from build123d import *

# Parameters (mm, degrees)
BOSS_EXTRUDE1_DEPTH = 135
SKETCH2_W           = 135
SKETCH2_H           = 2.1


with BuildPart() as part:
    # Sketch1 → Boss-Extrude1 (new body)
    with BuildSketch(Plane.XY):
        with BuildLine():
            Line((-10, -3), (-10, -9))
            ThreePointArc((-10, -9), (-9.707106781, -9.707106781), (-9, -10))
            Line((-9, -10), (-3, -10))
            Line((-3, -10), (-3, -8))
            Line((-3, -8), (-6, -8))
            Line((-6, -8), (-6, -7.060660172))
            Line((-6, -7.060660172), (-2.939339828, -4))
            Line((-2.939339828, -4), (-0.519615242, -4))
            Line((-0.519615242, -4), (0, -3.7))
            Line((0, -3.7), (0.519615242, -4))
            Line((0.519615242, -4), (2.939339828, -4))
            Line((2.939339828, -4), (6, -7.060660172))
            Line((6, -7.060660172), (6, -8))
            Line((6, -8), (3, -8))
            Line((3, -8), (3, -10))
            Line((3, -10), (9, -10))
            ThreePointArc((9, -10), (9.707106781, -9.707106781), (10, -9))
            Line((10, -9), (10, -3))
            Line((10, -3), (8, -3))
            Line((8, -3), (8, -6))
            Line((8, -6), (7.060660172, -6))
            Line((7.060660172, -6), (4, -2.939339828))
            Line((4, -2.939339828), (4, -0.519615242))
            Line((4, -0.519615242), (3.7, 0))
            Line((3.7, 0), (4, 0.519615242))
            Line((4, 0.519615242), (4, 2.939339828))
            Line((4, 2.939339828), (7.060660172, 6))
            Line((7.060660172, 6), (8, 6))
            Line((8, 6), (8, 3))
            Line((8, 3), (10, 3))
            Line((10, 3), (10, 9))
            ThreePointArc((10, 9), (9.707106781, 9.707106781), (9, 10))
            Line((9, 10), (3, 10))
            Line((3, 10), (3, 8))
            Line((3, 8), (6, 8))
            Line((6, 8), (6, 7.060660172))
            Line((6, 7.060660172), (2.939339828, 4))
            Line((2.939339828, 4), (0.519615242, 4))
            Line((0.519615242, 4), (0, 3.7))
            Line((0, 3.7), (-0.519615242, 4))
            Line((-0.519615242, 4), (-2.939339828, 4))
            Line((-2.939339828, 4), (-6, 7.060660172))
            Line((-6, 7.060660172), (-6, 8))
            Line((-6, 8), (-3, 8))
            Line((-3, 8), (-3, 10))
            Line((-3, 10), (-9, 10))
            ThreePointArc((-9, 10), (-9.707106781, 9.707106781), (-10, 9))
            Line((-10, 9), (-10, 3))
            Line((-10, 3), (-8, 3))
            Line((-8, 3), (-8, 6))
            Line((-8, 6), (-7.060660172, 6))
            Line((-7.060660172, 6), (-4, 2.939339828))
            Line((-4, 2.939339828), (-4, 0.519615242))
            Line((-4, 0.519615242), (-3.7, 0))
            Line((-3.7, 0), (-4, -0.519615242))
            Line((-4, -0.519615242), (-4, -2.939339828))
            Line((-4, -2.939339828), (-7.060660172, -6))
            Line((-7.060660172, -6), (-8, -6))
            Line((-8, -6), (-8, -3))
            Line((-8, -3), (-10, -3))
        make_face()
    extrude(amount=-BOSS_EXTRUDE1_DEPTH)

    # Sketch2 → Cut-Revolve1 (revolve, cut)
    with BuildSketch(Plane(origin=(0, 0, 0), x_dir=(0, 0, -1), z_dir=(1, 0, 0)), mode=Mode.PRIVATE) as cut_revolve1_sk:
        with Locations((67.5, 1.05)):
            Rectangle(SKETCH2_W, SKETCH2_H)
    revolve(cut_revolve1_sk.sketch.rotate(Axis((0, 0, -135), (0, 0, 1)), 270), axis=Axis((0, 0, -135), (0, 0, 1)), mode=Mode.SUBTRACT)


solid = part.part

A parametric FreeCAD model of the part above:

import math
import FreeCAD as App
import Part
import Sketcher
Q = App.Units.Quantity

doc = App.newDocument("Part")
body = doc.addObject("PartDesign::Body", "Body")

# Sketch on XY plane
sketch1 = doc.addObject("Sketcher::SketchObject", "Sketch")
body.addObject(sketch1)
sketch1.AttachmentSupport = (doc.XY_Plane, [""])
sketch1.MapMode = "FlatFace"
sketch1.addGeometry([
    Part.LineSegment(App.Vector(-10, -3, 0), App.Vector(-10, -9, 0)),  # 0
    Part.ArcOfCircle(Part.Circle(App.Vector(-9, -9, 0), App.Vector(0, 0, 1), 1), math.radians(-180), math.radians(-90)),  # 1
    Part.LineSegment(App.Vector(-9, -10, 0), App.Vector(-3, -10, 0)),  # 2
    Part.LineSegment(App.Vector(-3, -10, 0), App.Vector(-3, -8, 0)),  # 3
    Part.LineSegment(App.Vector(-3, -8, 0), App.Vector(-6, -8, 0)),  # 4
    Part.LineSegment(App.Vector(-6, -8, 0), App.Vector(-6, -7.06066, 0)),  # 5
    Part.LineSegment(App.Vector(-6, -7.06066, 0), App.Vector(-2.93934, -4, 0)),  # 6
    Part.LineSegment(App.Vector(-2.93934, -4, 0), App.Vector(-0.519615, -4, 0)),  # 7
    Part.LineSegment(App.Vector(-0.519615, -4, 0), App.Vector(0, -3.7, 0)),  # 8
    Part.LineSegment(App.Vector(0, -3.7, 0), App.Vector(0.519615, -4, 0)),  # 9
    Part.LineSegment(App.Vector(0.519615, -4, 0), App.Vector(2.93934, -4, 0)),  # 10
    Part.LineSegment(App.Vector(2.93934, -4, 0), App.Vector(6, -7.06066, 0)),  # 11
    Part.LineSegment(App.Vector(6, -7.06066, 0), App.Vector(6, -8, 0)),  # 12
    Part.LineSegment(App.Vector(6, -8, 0), App.Vector(3, -8, 0)),  # 13
    Part.LineSegment(App.Vector(3, -8, 0), App.Vector(3, -10, 0)),  # 14
    Part.LineSegment(App.Vector(3, -10, 0), App.Vector(9, -10, 0)),  # 15
    Part.ArcOfCircle(Part.Circle(App.Vector(9, -9, 0), App.Vector(0, 0, 1), 1), math.radians(-90), math.radians(0)),  # 16
    Part.LineSegment(App.Vector(10, -9, 0), App.Vector(10, -3, 0)),  # 17
    Part.LineSegment(App.Vector(10, -3, 0), App.Vector(8, -3, 0)),  # 18
    Part.LineSegment(App.Vector(8, -3, 0), App.Vector(8, -6, 0)),  # 19
    Part.LineSegment(App.Vector(8, -6, 0), App.Vector(7.06066, -6, 0)),  # 20
    Part.LineSegment(App.Vector(7.06066, -6, 0), App.Vector(4, -2.93934, 0)),  # 21
    Part.LineSegment(App.Vector(4, -2.93934, 0), App.Vector(4, -0.519615, 0)),  # 22
    Part.LineSegment(App.Vector(4, -0.519615, 0), App.Vector(3.7, 0, 0)),  # 23
    Part.LineSegment(App.Vector(3.7, 0, 0), App.Vector(4, 0.519615, 0)),  # 24
    Part.LineSegment(App.Vector(4, 0.519615, 0), App.Vector(4, 2.93934, 0)),  # 25
    Part.LineSegment(App.Vector(4, 2.93934, 0), App.Vector(7.06066, 6, 0)),  # 26
    Part.LineSegment(App.Vector(7.06066, 6, 0), App.Vector(8, 6, 0)),  # 27
    Part.LineSegment(App.Vector(8, 6, 0), App.Vector(8, 3, 0)),  # 28
    Part.LineSegment(App.Vector(8, 3, 0), App.Vector(10, 3, 0)),  # 29
    Part.LineSegment(App.Vector(10, 3, 0), App.Vector(10, 9, 0)),  # 30
    Part.ArcOfCircle(Part.Circle(App.Vector(9, 9, 0), App.Vector(0, 0, 1), 1), math.radians(0), math.radians(90)),  # 31
    Part.LineSegment(App.Vector(9, 10, 0), App.Vector(3, 10, 0)),  # 32
    Part.LineSegment(App.Vector(3, 10, 0), App.Vector(3, 8, 0)),  # 33
    Part.LineSegment(App.Vector(3, 8, 0), App.Vector(6, 8, 0)),  # 34
    Part.LineSegment(App.Vector(6, 8, 0), App.Vector(6, 7.06066, 0)),  # 35
    Part.LineSegment(App.Vector(6, 7.06066, 0), App.Vector(2.93934, 4, 0)),  # 36
    Part.LineSegment(App.Vector(2.93934, 4, 0), App.Vector(0.519615, 4, 0)),  # 37
    Part.LineSegment(App.Vector(0.519615, 4, 0), App.Vector(0, 3.7, 0)),  # 38
    Part.LineSegment(App.Vector(0, 3.7, 0), App.Vector(-0.519615, 4, 0)),  # 39
    Part.LineSegment(App.Vector(-0.519615, 4, 0), App.Vector(-2.93934, 4, 0)),  # 40
    Part.LineSegment(App.Vector(-2.93934, 4, 0), App.Vector(-6, 7.06066, 0)),  # 41
    Part.LineSegment(App.Vector(-6, 7.06066, 0), App.Vector(-6, 8, 0)),  # 42
    Part.LineSegment(App.Vector(-6, 8, 0), App.Vector(-3, 8, 0)),  # 43
    Part.LineSegment(App.Vector(-3, 8, 0), App.Vector(-3, 10, 0)),  # 44
    Part.LineSegment(App.Vector(-3, 10, 0), App.Vector(-9, 10, 0)),  # 45
    Part.ArcOfCircle(Part.Circle(App.Vector(-9, 9, 0), App.Vector(0, 0, 1), 1), math.radians(90), math.radians(180)),  # 46
    Part.LineSegment(App.Vector(-10, 9, 0), App.Vector(-10, 3, 0)),  # 47
    Part.LineSegment(App.Vector(-10, 3, 0), App.Vector(-8, 3, 0)),  # 48
    Part.LineSegment(App.Vector(-8, 3, 0), App.Vector(-8, 6, 0)),  # 49
    Part.LineSegment(App.Vector(-8, 6, 0), App.Vector(-7.06066, 6, 0)),  # 50
    Part.LineSegment(App.Vector(-7.06066, 6, 0), App.Vector(-4, 2.93934, 0)),  # 51
    Part.LineSegment(App.Vector(-4, 2.93934, 0), App.Vector(-4, 0.519615, 0)),  # 52
    Part.LineSegment(App.Vector(-4, 0.519615, 0), App.Vector(-3.7, 0, 0)),  # 53
    Part.LineSegment(App.Vector(-3.7, 0, 0), App.Vector(-4, -0.519615, 0)),  # 54
    Part.LineSegment(App.Vector(-4, -0.519615, 0), App.Vector(-4, -2.93934, 0)),  # 55
    Part.LineSegment(App.Vector(-4, -2.93934, 0), App.Vector(-7.06066, -6, 0)),  # 56
    Part.LineSegment(App.Vector(-7.06066, -6, 0), App.Vector(-8, -6, 0)),  # 57
    Part.LineSegment(App.Vector(-8, -6, 0), App.Vector(-8, -3, 0)),  # 58
    Part.LineSegment(App.Vector(-8, -3, 0), App.Vector(-10, -3, 0)),  # 59
], False)
sketch1.addConstraint([
    Sketcher.Constraint("Tangent", 0, 2, 1, 1),
    Sketcher.Constraint("Tangent", 1, 2, 2, 1),
    Sketcher.Constraint("Coincident", 2, 2, 3, 1),
    Sketcher.Constraint("Coincident", 3, 2, 4, 1),
    Sketcher.Constraint("Coincident", 4, 2, 5, 1),
    Sketcher.Constraint("Coincident", 5, 2, 6, 1),
    Sketcher.Constraint("Coincident", 6, 2, 7, 1),
    Sketcher.Constraint("Coincident", 7, 2, 8, 1),
    Sketcher.Constraint("Coincident", 8, 2, 9, 1),
    Sketcher.Constraint("Coincident", 9, 2, 10, 1),
    Sketcher.Constraint("Coincident", 10, 2, 11, 1),
    Sketcher.Constraint("Coincident", 11, 2, 12, 1),
    Sketcher.Constraint("Coincident", 12, 2, 13, 1),
    Sketcher.Constraint("Coincident", 13, 2, 14, 1),
    Sketcher.Constraint("Coincident", 14, 2, 15, 1),
    Sketcher.Constraint("Tangent", 15, 2, 16, 1),
    Sketcher.Constraint("Tangent", 16, 2, 17, 1),
    Sketcher.Constraint("Coincident", 17, 2, 18, 1),
    Sketcher.Constraint("Coincident", 18, 2, 19, 1),
    Sketcher.Constraint("Coincident", 19, 2, 20, 1),
    Sketcher.Constraint("Coincident", 20, 2, 21, 1),
    Sketcher.Constraint("Coincident", 21, 2, 22, 1),
    Sketcher.Constraint("Coincident", 22, 2, 23, 1),
    Sketcher.Constraint("Coincident", 23, 2, 24, 1),
    Sketcher.Constraint("Coincident", 24, 2, 25, 1),
    Sketcher.Constraint("Coincident", 25, 2, 26, 1),
    Sketcher.Constraint("Coincident", 26, 2, 27, 1),
    Sketcher.Constraint("Coincident", 27, 2, 28, 1),
    Sketcher.Constraint("Coincident", 28, 2, 29, 1),
    Sketcher.Constraint("Coincident", 29, 2, 30, 1),
    Sketcher.Constraint("Tangent", 30, 2, 31, 1),
    Sketcher.Constraint("Tangent", 31, 2, 32, 1),
    Sketcher.Constraint("Coincident", 32, 2, 33, 1),
    Sketcher.Constraint("Coincident", 33, 2, 34, 1),
    Sketcher.Constraint("Coincident", 34, 2, 35, 1),
    Sketcher.Constraint("Coincident", 35, 2, 36, 1),
    Sketcher.Constraint("Coincident", 36, 2, 37, 1),
    Sketcher.Constraint("Coincident", 37, 2, 38, 1),
    Sketcher.Constraint("Coincident", 38, 2, 39, 1),
    Sketcher.Constraint("Coincident", 39, 2, 40, 1),
    Sketcher.Constraint("Coincident", 40, 2, 41, 1),
    Sketcher.Constraint("Coincident", 41, 2, 42, 1),
    Sketcher.Constraint("Coincident", 42, 2, 43, 1),
    Sketcher.Constraint("Coincident", 43, 2, 44, 1),
    Sketcher.Constraint("Coincident", 44, 2, 45, 1),
    Sketcher.Constraint("Tangent", 45, 2, 46, 1),
    Sketcher.Constraint("Tangent", 46, 2, 47, 1),
    Sketcher.Constraint("Coincident", 47, 2, 48, 1),
    Sketcher.Constraint("Coincident", 48, 2, 49, 1),
    Sketcher.Constraint("Coincident", 49, 2, 50, 1),
    Sketcher.Constraint("Coincident", 50, 2, 51, 1),
    Sketcher.Constraint("Coincident", 51, 2, 52, 1),
    Sketcher.Constraint("Coincident", 52, 2, 53, 1),
    Sketcher.Constraint("Coincident", 53, 2, 54, 1),
    Sketcher.Constraint("Coincident", 54, 2, 55, 1),
    Sketcher.Constraint("Coincident", 55, 2, 56, 1),
    Sketcher.Constraint("Coincident", 56, 2, 57, 1),
    Sketcher.Constraint("Coincident", 57, 2, 58, 1),
    Sketcher.Constraint("Coincident", 58, 2, 59, 1),
    Sketcher.Constraint("Coincident", 59, 2, 0, 1),
    Sketcher.Constraint("Vertical", 0),
    Sketcher.Constraint("Horizontal", 2),
    Sketcher.Constraint("Vertical", 3),
    Sketcher.Constraint("Horizontal", 4),
    Sketcher.Constraint("Vertical", 5),
    Sketcher.Constraint("Horizontal", 7),
    Sketcher.Constraint("Horizontal", 10),
    Sketcher.Constraint("Vertical", 12),
    Sketcher.Constraint("Horizontal", 13),
    Sketcher.Constraint("Vertical", 14),
    Sketcher.Constraint("Horizontal", 15),
    Sketcher.Constraint("Vertical", 17),
    Sketcher.Constraint("Horizontal", 18),
    Sketcher.Constraint("Vertical", 19),
    Sketcher.Constraint("Horizontal", 20),
    Sketcher.Constraint("Vertical", 22),
    Sketcher.Constraint("Vertical", 25),
    Sketcher.Constraint("Horizontal", 27),
    Sketcher.Constraint("Vertical", 28),
    Sketcher.Constraint("Horizontal", 29),
    Sketcher.Constraint("Vertical", 30),
    Sketcher.Constraint("Horizontal", 32),
    Sketcher.Constraint("Vertical", 33),
    Sketcher.Constraint("Horizontal", 34),
    Sketcher.Constraint("Vertical", 35),
    Sketcher.Constraint("Horizontal", 37),
    Sketcher.Constraint("Horizontal", 40),
    Sketcher.Constraint("Vertical", 42),
    Sketcher.Constraint("Horizontal", 43),
    Sketcher.Constraint("Vertical", 44),
    Sketcher.Constraint("Horizontal", 45),
    Sketcher.Constraint("Vertical", 47),
    Sketcher.Constraint("Horizontal", 48),
    Sketcher.Constraint("Vertical", 49),
    Sketcher.Constraint("Horizontal", 50),
    Sketcher.Constraint("Vertical", 52),
    Sketcher.Constraint("Vertical", 55),
    Sketcher.Constraint("Horizontal", 57),
    Sketcher.Constraint("Vertical", 58),
    Sketcher.Constraint("Horizontal", 59),
    Sketcher.Constraint("Equal", 1, 16),
    Sketcher.Constraint("Equal", 16, 31),
    Sketcher.Constraint("Equal", 31, 46),
    Sketcher.Constraint("Symmetric", 1, 3, 31, 3, -1, 1),
    Sketcher.Constraint("Symmetric", 16, 3, 46, 3, -1, 1),
    Sketcher.Constraint("Symmetric", 3, 2, 33, 2, -1, 1),
    Sketcher.Constraint("Symmetric", 5, 2, 35, 2, -1, 1),
    Sketcher.Constraint("Symmetric", 6, 2, 36, 2, -1, 1),
    Sketcher.Constraint("Symmetric", 8, 2, 38, 2, -1, 1),
    Sketcher.Constraint("Symmetric", 9, 2, 39, 2, -1, 1),
    Sketcher.Constraint("Symmetric", 11, 2, 41, 2, -1, 1),
    Sketcher.Constraint("Symmetric", 13, 2, 43, 2, -1, 1),
    Sketcher.Constraint("Symmetric", 18, 2, 48, 2, -1, 1),
    Sketcher.Constraint("Symmetric", 20, 2, 50, 2, -1, 1),
    Sketcher.Constraint("Symmetric", 21, 2, 51, 2, -1, 1),
    Sketcher.Constraint("Symmetric", 23, 2, 53, 2, -1, 1),
    Sketcher.Constraint("Symmetric", 24, 2, 54, 2, -1, 1),
    Sketcher.Constraint("Symmetric", 26, 2, 56, 2, -1, 1),
    Sketcher.Constraint("Symmetric", 28, 2, 58, 2, -1, 1),
    Sketcher.Constraint("Symmetric", 1, 3, 16, 3, -2),
    Sketcher.Constraint("Symmetric", 7, 2, 9, 2, -2),
    Sketcher.Constraint("Symmetric", 5, 2, 11, 2, -2),
    Sketcher.Constraint("Symmetric", 3, 2, 13, 2, -2),
    Sketcher.Constraint("Symmetric", 28, 2, 48, 2, -2),
    Sketcher.Constraint("Symmetric", 26, 2, 50, 2, -2),
    Sketcher.Constraint("Symmetric", 25, 2, 51, 2, -2),
    Sketcher.Constraint("PointOnObject", 8, 2, -2),
    Sketcher.Constraint("PointOnObject", 23, 2, -1),
    Sketcher.Constraint("Perpendicular", 6, 11),
    Sketcher.Constraint("Parallel", 11, 21),
    Sketcher.Constraint("Perpendicular", 8, 23),
    Sketcher.Constraint("Perpendicular", 9, 24),
    Sketcher.Constraint("Perpendicular", 21, 26),
    Sketcher.Constraint("Perpendicular", 23, 38),
    Sketcher.Constraint("Perpendicular", 36, 41),
    Sketcher.Constraint("Perpendicular", 38, 53),
    Sketcher.Constraint("Perpendicular", 51, 56),
    Sketcher.Constraint("Equal", 45, 0),
    Sketcher.Constraint("Equal", 59, 3),
    Sketcher.Constraint("Equal", 57, 5),
    Sketcher.Constraint("Equal", 43, 19),
    Sketcher.Constraint("Equal", 40, 22),
    Sketcher.Constraint("Equal", 11, 21),
    Sketcher.Constraint("Equal", 9, 23),
    Sketcher.Constraint("Radius", 1, 1.0),
    Sketcher.Constraint("DistanceX", 2, 1, 2, 2, 6.0),
    Sketcher.Constraint("DistanceX", 4, 2, 4, 1, 3.0),
    Sketcher.Constraint("DistanceX", 18, 2, 18, 1, 2.0),
    Sketcher.Constraint("Angle", 8, Q("30 deg")),
    Sketcher.Constraint("DistanceX", 1, 3, -1, 1, 9.0),
    Sketcher.Constraint("DistanceY", 6, 2, -1, 1, 4.0),
    Sketcher.Constraint("Distance", 8, 0.6),
    Sketcher.Constraint("DistanceX", 20, 2, 20, 1, 0.93934),
])
pad1 = doc.addObject("PartDesign::Pad", "Pad")
body.addObject(pad1)
pad1.Profile = sketch1
pad1.Length = 135
pad1.Reversed = True

# Sketch on YZ plane
sketch2 = doc.addObject("Sketcher::SketchObject", "Sketch001")
body.addObject(sketch2)
sketch2.AttachmentSupport = (doc.YZ_Plane, [""])
sketch2.MapMode = "FlatFace"
sketch2.addGeometry([
    Part.LineSegment(App.Vector(2.1, 0, 0), App.Vector(0, 0, 0)),
    Part.LineSegment(App.Vector(0, 0, 0), App.Vector(0, -135, 0)),
    Part.LineSegment(App.Vector(0, -135, 0), App.Vector(2.1, -135, 0)),
    Part.LineSegment(App.Vector(2.1, -135, 0), App.Vector(2.1, 0, 0)),
], False)
sketch2.addConstraint([
    Sketcher.Constraint("Coincident", 0, 2, 1, 1),
    Sketcher.Constraint("Coincident", 1, 2, 2, 1),
    Sketcher.Constraint("Coincident", 2, 2, 3, 1),
    Sketcher.Constraint("Coincident", 3, 2, 0, 1),
    Sketcher.Constraint("Horizontal", 0),
    Sketcher.Constraint("Vertical", 1),
    Sketcher.Constraint("Horizontal", 2),
    Sketcher.Constraint("Vertical", 3),
    Sketcher.Constraint("Coincident", 0, 2, -1, 1),
    Sketcher.Constraint("DistanceY", 1, 2, 1, 1, 135.0),
    Sketcher.Constraint("DistanceX", 0, 2, 0, 1, 2.1),
])
groove = doc.addObject("PartDesign::Groove", "Groove")
body.addObject(groove)
groove.Profile = sketch2
groove.ReferenceAxis = (sketch2, ["V_Axis"])
groove.Angle = 360

doc.recompute()
